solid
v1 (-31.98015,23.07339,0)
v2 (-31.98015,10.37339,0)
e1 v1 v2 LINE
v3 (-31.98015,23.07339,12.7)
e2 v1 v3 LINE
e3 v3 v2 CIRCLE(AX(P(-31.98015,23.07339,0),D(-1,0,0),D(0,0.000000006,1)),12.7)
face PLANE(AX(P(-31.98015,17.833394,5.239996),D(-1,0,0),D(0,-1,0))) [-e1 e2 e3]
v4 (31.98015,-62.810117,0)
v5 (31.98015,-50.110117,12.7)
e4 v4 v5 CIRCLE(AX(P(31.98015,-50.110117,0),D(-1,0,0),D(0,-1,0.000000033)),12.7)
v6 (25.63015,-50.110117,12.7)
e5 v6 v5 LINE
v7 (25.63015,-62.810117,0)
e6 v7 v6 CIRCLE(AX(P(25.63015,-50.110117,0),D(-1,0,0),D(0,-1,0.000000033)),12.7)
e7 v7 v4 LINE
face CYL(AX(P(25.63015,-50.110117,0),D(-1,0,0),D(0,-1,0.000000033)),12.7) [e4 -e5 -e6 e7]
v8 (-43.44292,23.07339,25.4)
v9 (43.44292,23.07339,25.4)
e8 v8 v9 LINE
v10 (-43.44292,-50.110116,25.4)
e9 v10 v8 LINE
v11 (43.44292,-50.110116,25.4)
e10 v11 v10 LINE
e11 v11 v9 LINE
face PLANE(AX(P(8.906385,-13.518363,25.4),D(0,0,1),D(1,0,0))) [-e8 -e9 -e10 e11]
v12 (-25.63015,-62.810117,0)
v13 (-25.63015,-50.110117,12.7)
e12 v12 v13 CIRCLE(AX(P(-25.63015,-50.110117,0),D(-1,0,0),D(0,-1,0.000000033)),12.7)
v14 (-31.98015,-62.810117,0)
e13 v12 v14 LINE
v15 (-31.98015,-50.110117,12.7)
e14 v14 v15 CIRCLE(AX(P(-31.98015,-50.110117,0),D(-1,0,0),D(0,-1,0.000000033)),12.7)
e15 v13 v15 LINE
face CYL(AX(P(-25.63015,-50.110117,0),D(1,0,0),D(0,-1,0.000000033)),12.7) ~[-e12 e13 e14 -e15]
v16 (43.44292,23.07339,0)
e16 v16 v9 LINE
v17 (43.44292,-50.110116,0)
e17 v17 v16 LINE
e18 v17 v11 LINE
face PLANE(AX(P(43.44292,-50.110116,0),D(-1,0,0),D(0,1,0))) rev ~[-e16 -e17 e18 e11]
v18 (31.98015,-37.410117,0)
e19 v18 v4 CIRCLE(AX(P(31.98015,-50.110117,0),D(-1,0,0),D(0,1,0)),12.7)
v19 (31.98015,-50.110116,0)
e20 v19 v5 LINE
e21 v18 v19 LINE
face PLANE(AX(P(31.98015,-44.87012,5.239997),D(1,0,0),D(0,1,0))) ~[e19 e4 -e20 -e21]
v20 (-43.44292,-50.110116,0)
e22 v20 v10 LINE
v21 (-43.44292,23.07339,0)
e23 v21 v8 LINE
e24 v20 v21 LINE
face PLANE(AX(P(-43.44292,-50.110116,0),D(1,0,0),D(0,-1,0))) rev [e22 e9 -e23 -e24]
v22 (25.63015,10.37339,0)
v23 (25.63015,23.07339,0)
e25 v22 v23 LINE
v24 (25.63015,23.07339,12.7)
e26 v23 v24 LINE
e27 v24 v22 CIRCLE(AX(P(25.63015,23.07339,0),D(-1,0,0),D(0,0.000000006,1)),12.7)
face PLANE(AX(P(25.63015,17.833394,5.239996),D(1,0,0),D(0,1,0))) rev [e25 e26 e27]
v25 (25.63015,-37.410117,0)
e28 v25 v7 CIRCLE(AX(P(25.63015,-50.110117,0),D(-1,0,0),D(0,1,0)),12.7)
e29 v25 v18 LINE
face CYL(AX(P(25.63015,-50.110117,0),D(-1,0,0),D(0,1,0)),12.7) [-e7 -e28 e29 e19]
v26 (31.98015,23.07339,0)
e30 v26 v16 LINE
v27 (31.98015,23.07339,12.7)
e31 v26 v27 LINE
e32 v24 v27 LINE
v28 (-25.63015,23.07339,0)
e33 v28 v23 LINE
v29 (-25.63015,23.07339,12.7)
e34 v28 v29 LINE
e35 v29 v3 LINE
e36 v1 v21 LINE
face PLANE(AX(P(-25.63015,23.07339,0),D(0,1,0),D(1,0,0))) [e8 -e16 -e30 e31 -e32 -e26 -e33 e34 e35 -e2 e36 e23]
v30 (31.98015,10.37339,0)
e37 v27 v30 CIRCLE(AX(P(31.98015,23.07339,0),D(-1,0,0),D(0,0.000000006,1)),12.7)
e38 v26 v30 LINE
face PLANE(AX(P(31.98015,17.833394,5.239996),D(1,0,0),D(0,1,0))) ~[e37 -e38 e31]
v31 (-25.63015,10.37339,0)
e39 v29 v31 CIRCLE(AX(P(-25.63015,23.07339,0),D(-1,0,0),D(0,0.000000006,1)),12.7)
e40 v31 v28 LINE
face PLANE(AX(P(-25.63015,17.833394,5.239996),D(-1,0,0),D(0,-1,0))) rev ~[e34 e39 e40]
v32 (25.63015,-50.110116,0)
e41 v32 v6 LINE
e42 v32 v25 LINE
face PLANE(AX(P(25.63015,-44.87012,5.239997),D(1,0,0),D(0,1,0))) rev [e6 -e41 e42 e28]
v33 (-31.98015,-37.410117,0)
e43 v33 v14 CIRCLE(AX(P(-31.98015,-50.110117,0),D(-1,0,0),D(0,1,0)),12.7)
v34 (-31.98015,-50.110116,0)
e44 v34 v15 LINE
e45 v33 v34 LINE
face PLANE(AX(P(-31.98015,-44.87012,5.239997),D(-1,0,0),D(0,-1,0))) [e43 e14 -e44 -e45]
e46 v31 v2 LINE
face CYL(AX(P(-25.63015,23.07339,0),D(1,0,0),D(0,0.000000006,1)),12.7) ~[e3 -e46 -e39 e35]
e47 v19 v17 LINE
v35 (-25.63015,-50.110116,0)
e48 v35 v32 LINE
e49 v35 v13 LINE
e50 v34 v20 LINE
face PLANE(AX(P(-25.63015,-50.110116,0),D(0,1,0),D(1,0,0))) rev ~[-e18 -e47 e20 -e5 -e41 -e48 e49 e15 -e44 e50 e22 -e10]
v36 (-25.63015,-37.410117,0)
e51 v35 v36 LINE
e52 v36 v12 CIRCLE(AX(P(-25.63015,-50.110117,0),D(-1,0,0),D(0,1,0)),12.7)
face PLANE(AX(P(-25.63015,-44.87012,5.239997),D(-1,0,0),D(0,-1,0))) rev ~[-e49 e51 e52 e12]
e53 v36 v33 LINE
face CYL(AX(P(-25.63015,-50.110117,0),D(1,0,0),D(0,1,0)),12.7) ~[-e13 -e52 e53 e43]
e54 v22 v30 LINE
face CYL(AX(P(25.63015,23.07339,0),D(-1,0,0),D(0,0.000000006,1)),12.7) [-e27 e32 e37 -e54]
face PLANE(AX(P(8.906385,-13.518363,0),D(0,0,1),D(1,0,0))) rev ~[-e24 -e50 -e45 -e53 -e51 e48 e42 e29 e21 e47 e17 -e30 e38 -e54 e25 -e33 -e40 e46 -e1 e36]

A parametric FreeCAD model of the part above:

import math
import FreeCAD as App
import Part
import Sketcher

V = App.Vector
Q = App.Units.Quantity


def add_polygon(sketch, points):
    """Adds a closed chain of lines whose ends are joined by coincident constraints."""
    first, n = sketch.GeometryCount, len(points)
    for a, b in zip(points, points[1:] + points[:1]):
        sketch.addGeometry(Part.LineSegment(App.Vector(*a, 0), App.Vector(*b, 0)), False)
    for i in range(n):
        sketch.addConstraint(Sketcher.Constraint("Coincident", first + i, 2, first + (i + 1) % n, 1))

doc = App.newDocument("Part")
body = doc.addObject("PartDesign::Body", "Body")

sketch1 = body.newObject("Sketcher::SketchObject", "Sketch")
sketch1.AttachmentSupport = (doc.getObject("XY_Plane"), [""])
sketch1.MapMode = "FlatFace"
add_polygon(sketch1, [(-26, 23), (-26, -50), (43, -50), (43, 23)])
sketch1.addConstraint([
    Sketcher.Constraint("Vertical", 0),
    Sketcher.Constraint("Horizontal", 1),
    Sketcher.Constraint("Vertical", 2),
    Sketcher.Constraint("Horizontal", 3),
    Sketcher.Constraint("DistanceX", 1, 1, 1, 2, 69.07307),
    Sketcher.Constraint("DistanceY", 0, 2, 0, 1, 73.183507),
    Sketcher.Constraint("DistanceX", 0, 2, -1, 1, 25.63015),
    Sketcher.Constraint("DistanceY", -1, 1, 2, 2, 23.07339),
])
pad1 = body.newObject("PartDesign::Pad", "Pad")
pad1.Profile = sketch1
pad1.Length = Q("1 in")

sketch2 = body.newObject("Sketcher::SketchObject", "Sketch001")
sketch2.AttachmentSupport = (doc.getObject("YZ_Plane"), [""])
sketch2.MapMode = "FlatFace"
sketch2.AttachmentOffset = App.Placement(V(0, 0, -25.63015), App.Rotation())
sketch2.addGeometry([
    Part.ArcOfCircle(Part.Circle(V(23, 0, 0), V(0, 0, 1), 13), math.radians(90), math.radians(180)),
    Part.ArcOfCircle(Part.Circle(V(23, 0, 0), V(0, 0, 1), 13), math.radians(-180), math.radians(90)),
    Part.ArcOfCircle(Part.Circle(V(-50, 0, 0), V(0, 0, 1), 13), math.radians(0), math.radians(90)),
    Part.ArcOfCircle(Part.Circle(V(-50, 0, 0), V(0, 0, 1), 13), math.radians(180), math.radians(360)),
    Part.ArcOfCircle(Part.Circle(V(-50, 0, 0), V(0, 0, 1), 13), math.radians(90), math.radians(180)),
], False)
sketch2.addConstraint([
    Sketcher.Constraint("Tangent", 0, 1, 1, 2),
    Sketcher.Constraint("Coincident", 1, 1, 0, 2),
    Sketcher.Constraint("Tangent", 2, 1, 3, 2),
    Sketcher.Constraint("Tangent", 3, 1, 4, 2),
    Sketcher.Constraint("Tangent", 4, 1, 2, 2),
    Sketcher.Constraint("Equal", 1, 2),
    Sketcher.Constraint("PointOnObject", 0, 3, -1),
    Sketcher.Constraint("PointOnObject", 2, 3, -1),
    Sketcher.Constraint("PointOnObject", 1, 1, -1),
    Sketcher.Constraint("PointOnObject", 2, 1, -1),
    Sketcher.Constraint("PointOnObject", 3, 1, -1),
    Sketcher.Constraint("Vertical", 1, 3, 0, 1),
    Sketcher.Constraint("Vertical", 3, 3, 4, 1),
    Sketcher.Constraint("Radius", 0, Q("0.5 in")),
    Sketcher.Constraint("DistanceX", -1, 1, 0, 3, 23.07339),
    Sketcher.Constraint("DistanceX", 2, 3, -1, 1, 50.110116),
])
pad2 = body.newObject("PartDesign::Pad", "Pad001")
pad2.Profile = sketch2
pad2.Length = Q("0.25 in")
pad2.Reversed = True
body2 = doc.addObject("PartDesign::Body", "Body001")
doc.recompute()

body2.BaseFeature = body
doc.recompute()

mirroring = doc.addObject("Part::Mirroring", "Mirroring")
mirroring.Source = body
mirroring.Base = V(0, 0, 0)
mirroring.Normal = V(1, 0, 0)
body3 = doc.addObject("PartDesign::Body", "Body002")
body3.BaseFeature = mirroring
boolean = body2.newObject("PartDesign::Boolean", "Boolean")
boolean.Type = "Fuse"
boolean.addObjects([body3])
doc.recompute()
mirroring.Visibility = False

doc.recompute()
